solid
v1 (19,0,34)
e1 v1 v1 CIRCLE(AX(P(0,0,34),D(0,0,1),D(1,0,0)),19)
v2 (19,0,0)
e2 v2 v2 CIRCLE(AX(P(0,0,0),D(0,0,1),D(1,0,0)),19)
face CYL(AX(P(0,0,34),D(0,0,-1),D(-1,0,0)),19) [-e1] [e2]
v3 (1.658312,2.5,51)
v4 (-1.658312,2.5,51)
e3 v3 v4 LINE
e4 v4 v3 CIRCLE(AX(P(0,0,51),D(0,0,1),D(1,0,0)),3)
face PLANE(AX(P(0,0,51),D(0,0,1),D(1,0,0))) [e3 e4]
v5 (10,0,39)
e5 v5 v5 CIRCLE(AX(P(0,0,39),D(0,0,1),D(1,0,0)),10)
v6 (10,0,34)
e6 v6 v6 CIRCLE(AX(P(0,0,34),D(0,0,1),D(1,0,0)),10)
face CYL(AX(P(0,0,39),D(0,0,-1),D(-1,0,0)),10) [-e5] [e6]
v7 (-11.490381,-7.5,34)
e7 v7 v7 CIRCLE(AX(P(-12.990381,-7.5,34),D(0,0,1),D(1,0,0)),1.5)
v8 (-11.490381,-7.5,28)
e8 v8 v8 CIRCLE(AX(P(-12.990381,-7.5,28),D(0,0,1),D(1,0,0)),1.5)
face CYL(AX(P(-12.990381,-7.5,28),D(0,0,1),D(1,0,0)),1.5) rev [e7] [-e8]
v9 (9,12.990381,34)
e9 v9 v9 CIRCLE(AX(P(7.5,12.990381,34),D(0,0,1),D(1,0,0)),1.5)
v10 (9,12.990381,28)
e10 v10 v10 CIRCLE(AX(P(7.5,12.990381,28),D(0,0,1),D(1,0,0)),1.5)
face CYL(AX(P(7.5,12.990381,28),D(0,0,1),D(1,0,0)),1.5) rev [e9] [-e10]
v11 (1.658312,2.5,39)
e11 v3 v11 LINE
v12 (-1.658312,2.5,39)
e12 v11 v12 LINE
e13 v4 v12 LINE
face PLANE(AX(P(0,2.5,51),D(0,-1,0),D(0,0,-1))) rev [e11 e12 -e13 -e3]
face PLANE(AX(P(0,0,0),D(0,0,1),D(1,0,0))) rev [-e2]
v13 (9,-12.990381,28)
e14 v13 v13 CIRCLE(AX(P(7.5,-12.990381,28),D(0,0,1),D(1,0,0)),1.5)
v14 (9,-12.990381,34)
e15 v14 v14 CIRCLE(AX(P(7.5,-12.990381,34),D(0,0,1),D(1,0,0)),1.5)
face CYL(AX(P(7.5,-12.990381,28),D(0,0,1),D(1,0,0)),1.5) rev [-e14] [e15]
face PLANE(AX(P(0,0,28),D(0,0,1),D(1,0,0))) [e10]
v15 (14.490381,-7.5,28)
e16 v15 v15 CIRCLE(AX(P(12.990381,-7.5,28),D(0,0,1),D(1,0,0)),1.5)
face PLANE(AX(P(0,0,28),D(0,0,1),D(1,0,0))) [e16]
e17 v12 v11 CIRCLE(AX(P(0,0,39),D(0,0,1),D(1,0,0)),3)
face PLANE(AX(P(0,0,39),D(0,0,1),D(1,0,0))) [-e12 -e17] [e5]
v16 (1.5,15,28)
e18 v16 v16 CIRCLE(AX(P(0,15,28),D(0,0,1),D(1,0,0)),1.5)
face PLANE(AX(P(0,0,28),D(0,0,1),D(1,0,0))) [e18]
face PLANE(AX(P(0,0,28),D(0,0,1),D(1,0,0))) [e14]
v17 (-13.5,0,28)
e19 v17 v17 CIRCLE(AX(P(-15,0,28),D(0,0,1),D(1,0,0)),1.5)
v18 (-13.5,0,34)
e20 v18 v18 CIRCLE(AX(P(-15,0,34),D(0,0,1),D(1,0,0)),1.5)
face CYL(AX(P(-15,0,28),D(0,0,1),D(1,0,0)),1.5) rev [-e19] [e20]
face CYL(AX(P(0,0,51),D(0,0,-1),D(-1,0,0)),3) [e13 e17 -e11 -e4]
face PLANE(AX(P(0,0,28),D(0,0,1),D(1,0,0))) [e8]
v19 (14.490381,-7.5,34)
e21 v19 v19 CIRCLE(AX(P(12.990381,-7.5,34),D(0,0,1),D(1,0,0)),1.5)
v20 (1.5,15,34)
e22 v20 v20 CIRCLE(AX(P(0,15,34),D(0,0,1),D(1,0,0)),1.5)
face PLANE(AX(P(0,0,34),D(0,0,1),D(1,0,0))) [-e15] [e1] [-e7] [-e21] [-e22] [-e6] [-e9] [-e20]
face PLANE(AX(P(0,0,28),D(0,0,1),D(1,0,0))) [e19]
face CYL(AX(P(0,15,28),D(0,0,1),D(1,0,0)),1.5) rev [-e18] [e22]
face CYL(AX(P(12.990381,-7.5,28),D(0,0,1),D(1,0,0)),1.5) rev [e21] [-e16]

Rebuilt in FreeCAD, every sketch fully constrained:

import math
import FreeCAD as App
import Part
import Sketcher
from FreeCAD import Vector
Q = App.Units.Quantity

doc = App.newDocument("Part")
body = doc.addObject("PartDesign::Body", "Body")

sketch1 = body.newObject("Sketcher::SketchObject", "Sketch")
sketch1.AttachmentSupport = (doc.getObject("XY_Plane"), [""])
sketch1.MapMode = "FlatFace"
sketch1.addGeometry(Part.Circle(Vector(0, 0, 0), Vector(0, 0, 1), 19), False)
sketch1.addConstraint(Sketcher.Constraint("Coincident", 0, 3, -1, 1))
sketch1.addConstraint(Sketcher.Constraint("Diameter", 0, Q("38 mm")))
pad1 = body.newObject("PartDesign::Pad", "Pad")
pad1.Profile = sketch1
pad1.Length = 34

sketch2 = body.newObject("Sketcher::SketchObject", "Sketch001")
sketch2.AttachmentSupport = (doc.getObject("XY_Plane"), [""])
sketch2.MapMode = "FlatFace"
sketch2.AttachmentOffset = App.Placement(Vector(0, 0, 34), App.Rotation())
sketch2.addGeometry(Part.Circle(Vector(-13, -7.5, 0), Vector(0, 0, 1), 1.5), False)
sketch2.addGeometry(Part.Circle(Vector(-15, 0, 0), Vector(0, 0, 1), 1.5), False)
sketch2.addGeometry(Part.Circle(Vector(0, 15, 0), Vector(0, 0, 1), 1.5), False)
sketch2.addGeometry(Part.Circle(Vector(7.5, 13, 0), Vector(0, 0, 1), 1.5), False)
sketch2.addGeometry(Part.Circle(Vector(13, -7.5, 0), Vector(0, 0, 1), 1.5), False)
sketch2.addGeometry(Part.Circle(Vector(7.5, -13, 0), Vector(0, 0, 1), 1.5), False)
sketch2.addConstraint(Sketcher.Constraint("Equal", 0, 1))
sketch2.addConstraint(Sketcher.Constraint("Equal", 1, 2))
sketch2.addConstraint(Sketcher.Constraint("Equal", 2, 3))
sketch2.addConstraint(Sketcher.Constraint("Equal", 3, 4))
sketch2.addConstraint(Sketcher.Constraint("Equal", 4, 5))
sketch2.addConstraint(Sketcher.Constraint("Symmetric", 0, 3, 4, 3, -2))
sketch2.addConstraint(Sketcher.Constraint("Symmetric", 3, 3, 5, 3, -1))
sketch2.addConstraint(Sketcher.Constraint("PointOnObject", 1, 3, -1))
sketch2.addConstraint(Sketcher.Constraint("PointOnObject", 2, 3, -2))
sketch2.addConstraint(Sketcher.Constraint("Diameter", 0, Q("3 mm")))
sketch2.addConstraint(Sketcher.Constraint("DistanceX", 1, 3, -1, 1, Q("15 mm")))
sketch2.addConstraint(Sketcher.Constraint("DistanceY", -1, 1, 2, 3, Q("15 mm")))
sketch2.addConstraint(Sketcher.Constraint("DistanceY", 0, 3, -1, 1, Q("7.5 mm")))
sketch2.addConstraint(Sketcher.Constraint("DistanceX", -1, 1, 3, 3, Q("7.5 mm")))
sketch2.addConstraint(Sketcher.Constraint("DistanceX", 0, 3, -1, 1, Q("12.990381 mm")))
sketch2.addConstraint(Sketcher.Constraint("DistanceY", -1, 1, 3, 3, Q("12.990381 mm")))
pocket1 = body.newObject("PartDesign::Pocket", "Pocket")
pocket1.Profile = sketch2
pocket1.Length = 6

sketch3 = body.newObject("Sketcher::SketchObject", "Sketch002")
sketch3.AttachmentSupport = (doc.getObject("XY_Plane"), [""])
sketch3.MapMode = "FlatFace"
sketch3.AttachmentOffset = App.Placement(Vector(0, 0, 34), App.Rotation())
sketch3.addGeometry(Part.Circle(Vector(0, 0, 0), Vector(0, 0, 1), 10), False)
sketch3.addConstraint(Sketcher.Constraint("Coincident", 0, 3, -1, 1))
sketch3.addConstraint(Sketcher.Constraint("Diameter", 0, Q("20 mm")))
pad2 = body.newObject("PartDesign::Pad", "Pad001")
pad2.Profile = sketch3
pad2.Length = 5

sketch4 = body.newObject("Sketcher::SketchObject", "Sketch003")
sketch4.AttachmentSupport = (doc.getObject("XY_Plane"), [""])
sketch4.MapMode = "FlatFace"
sketch4.AttachmentOffset = App.Placement(Vector(0, 0, 39), App.Rotation())
sketch4.addGeometry(Part.ArcOfCircle(Part.Circle(Vector(0, 0, 0), Vector(0, 0, 1), 3), math.radians(0), math.radians(56)), False)
sketch4.addGeometry(Part.LineSegment(Vector(1.7, 2.5, 0), Vector(-1.7, 2.5, 0)), False)
sketch4.addGeometry(Part.ArcOfCircle(Part.Circle(Vector(0, 0, 0), Vector(0, 0, 1), 3), math.radians(124), math.radians(360)), False)
sketch4.addConstraint(Sketcher.Constraint("Coincident", 0, 2, 1, 1))
sketch4.addConstraint(Sketcher.Constraint("Coincident", 1, 2, 2, 1))
sketch4.addConstraint(Sketcher.Constraint("Tangent", 2, 2, 0, 1))
sketch4.addConstraint(Sketcher.Constraint("Horizontal", 1))
sketch4.addConstraint(Sketcher.Constraint("Coincident", 0, 3, -1, 1))
sketch4.addConstraint(Sketcher.Constraint("Equal", 0, 2))
sketch4.addConstraint(Sketcher.Constraint("PointOnObject", 2, 2, -1))
sketch4.addConstraint(Sketcher.Constraint("Radius", 0, Q("3 mm")))
sketch4.addConstraint(Sketcher.Constraint("DistanceY", -1, 1, 0, 2, Q("2.5 mm")))
pad3 = body.newObject("PartDesign::Pad", "Pad002")
pad3.Profile = sketch4
pad3.Length = 12

doc.recompute()
